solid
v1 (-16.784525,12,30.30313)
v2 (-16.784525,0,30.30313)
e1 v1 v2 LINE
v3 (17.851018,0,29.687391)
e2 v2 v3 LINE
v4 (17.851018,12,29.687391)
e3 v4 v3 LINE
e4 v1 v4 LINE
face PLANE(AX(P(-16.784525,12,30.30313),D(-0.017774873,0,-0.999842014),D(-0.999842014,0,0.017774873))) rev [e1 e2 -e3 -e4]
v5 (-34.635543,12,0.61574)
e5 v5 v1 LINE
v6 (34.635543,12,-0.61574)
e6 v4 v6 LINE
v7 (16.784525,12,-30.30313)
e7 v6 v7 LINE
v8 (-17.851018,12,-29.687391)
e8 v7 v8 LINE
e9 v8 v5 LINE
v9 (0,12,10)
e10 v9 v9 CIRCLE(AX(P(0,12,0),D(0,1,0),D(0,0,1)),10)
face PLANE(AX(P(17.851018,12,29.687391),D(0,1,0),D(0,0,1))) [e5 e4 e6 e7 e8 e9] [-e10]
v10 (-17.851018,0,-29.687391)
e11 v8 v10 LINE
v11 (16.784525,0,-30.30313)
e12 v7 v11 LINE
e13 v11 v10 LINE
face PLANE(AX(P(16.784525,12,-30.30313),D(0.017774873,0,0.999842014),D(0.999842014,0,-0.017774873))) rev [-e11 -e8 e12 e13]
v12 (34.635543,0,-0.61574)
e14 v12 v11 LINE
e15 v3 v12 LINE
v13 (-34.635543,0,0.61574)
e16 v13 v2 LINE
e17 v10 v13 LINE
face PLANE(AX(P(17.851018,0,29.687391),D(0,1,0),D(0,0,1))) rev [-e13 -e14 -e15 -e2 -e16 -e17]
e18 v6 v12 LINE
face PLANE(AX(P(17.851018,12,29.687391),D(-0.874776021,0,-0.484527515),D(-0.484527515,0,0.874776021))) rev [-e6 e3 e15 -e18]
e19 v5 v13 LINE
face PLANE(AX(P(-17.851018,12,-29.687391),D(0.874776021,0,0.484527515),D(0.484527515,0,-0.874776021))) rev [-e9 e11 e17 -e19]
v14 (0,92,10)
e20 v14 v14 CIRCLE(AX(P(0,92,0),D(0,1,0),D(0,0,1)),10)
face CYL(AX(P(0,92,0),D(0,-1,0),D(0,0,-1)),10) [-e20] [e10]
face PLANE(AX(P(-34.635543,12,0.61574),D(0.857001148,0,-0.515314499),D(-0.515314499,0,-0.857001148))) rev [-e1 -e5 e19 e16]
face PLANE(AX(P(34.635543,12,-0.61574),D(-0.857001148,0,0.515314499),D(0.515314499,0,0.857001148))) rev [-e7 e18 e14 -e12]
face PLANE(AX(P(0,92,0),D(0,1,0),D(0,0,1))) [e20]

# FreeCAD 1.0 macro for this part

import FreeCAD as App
import Part
import Sketcher

V = App.Vector


def add_polygon(sketch, points):
    """Adds a closed chain of lines whose ends are joined by coincident constraints."""
    first, n = sketch.GeometryCount, len(points)
    for a, b in zip(points, points[1:] + points[:1]):
        sketch.addGeometry(Part.LineSegment(App.Vector(*a, 0), App.Vector(*b, 0)), False)
    for i in range(n):
        sketch.addConstraint(Sketcher.Constraint("Coincident", first + i, 2, first + (i + 1) % n, 1))

doc = App.newDocument("Part")
body = doc.addObject("PartDesign::Body", "Body")

# Sketch on XZ plane
sketch1 = doc.addObject("Sketcher::SketchObject", "Sketch")
body.addObject(sketch1)
sketch1.AttachmentSupport = (doc.XZ_Plane, [""])
sketch1.MapMode = "FlatFace"
add_polygon(sketch1, [(18, 30), (35, -1), (17, -30), (-18, -30), (-35, 1), (-17, 30)])  # lines 0-5
sketch1.addConstraint(Sketcher.Constraint("Symmetric", 0, 2, 3, 2, -1, 1))
sketch1.addConstraint(Sketcher.Constraint("Symmetric", 1, 2, 4, 2, -1, 1))
sketch1.addConstraint(Sketcher.Constraint("Symmetric", 2, 2, 5, 2, -1, 1))
sketch1.addConstraint(Sketcher.Constraint("Equal", 0, 1))
sketch1.addConstraint(Sketcher.Constraint("Equal", 1, 2))
sketch1.addConstraint(Sketcher.Constraint("DistanceY", 0, 2, -1, 1, 0.61574))
sketch1.addConstraint(Sketcher.Constraint("DistanceY", 1, 2, -1, 1, 30.30313))
sketch1.addConstraint(Sketcher.Constraint("DistanceY", 2, 2, -1, 1, 29.687391))
sketch1.addConstraint(Sketcher.Constraint("DistanceX", 2, 2, 0, 2, 52.486561))
pad1 = doc.addObject("PartDesign::Pad", "Pad")
body.addObject(pad1)
pad1.Profile = sketch1
pad1.Length = 12
pad1.Reversed = True

# Sketch on XZ plane
sketch2 = doc.addObject("Sketcher::SketchObject", "Sketch001")
body.addObject(sketch2)
sketch2.AttachmentSupport = (doc.XZ_Plane, [""])
sketch2.MapMode = "FlatFace"
sketch2.AttachmentOffset = App.Placement(V(0, 0, -12), App.Rotation())
sketch2.addGeometry(Part.Circle(V(0, 0, 0), V(0, 0, 1), 10), False)
sketch2.addConstraint(Sketcher.Constraint("Coincident", 0, 3, -1, 1))
sketch2.addConstraint(Sketcher.Constraint("Diameter", 0, 20.0))
pad2 = doc.addObject("PartDesign::Pad", "Pad001")
body.addObject(pad2)
pad2.Profile = sketch2
pad2.Length = 80
pad2.Reversed = True

doc.recompute()
